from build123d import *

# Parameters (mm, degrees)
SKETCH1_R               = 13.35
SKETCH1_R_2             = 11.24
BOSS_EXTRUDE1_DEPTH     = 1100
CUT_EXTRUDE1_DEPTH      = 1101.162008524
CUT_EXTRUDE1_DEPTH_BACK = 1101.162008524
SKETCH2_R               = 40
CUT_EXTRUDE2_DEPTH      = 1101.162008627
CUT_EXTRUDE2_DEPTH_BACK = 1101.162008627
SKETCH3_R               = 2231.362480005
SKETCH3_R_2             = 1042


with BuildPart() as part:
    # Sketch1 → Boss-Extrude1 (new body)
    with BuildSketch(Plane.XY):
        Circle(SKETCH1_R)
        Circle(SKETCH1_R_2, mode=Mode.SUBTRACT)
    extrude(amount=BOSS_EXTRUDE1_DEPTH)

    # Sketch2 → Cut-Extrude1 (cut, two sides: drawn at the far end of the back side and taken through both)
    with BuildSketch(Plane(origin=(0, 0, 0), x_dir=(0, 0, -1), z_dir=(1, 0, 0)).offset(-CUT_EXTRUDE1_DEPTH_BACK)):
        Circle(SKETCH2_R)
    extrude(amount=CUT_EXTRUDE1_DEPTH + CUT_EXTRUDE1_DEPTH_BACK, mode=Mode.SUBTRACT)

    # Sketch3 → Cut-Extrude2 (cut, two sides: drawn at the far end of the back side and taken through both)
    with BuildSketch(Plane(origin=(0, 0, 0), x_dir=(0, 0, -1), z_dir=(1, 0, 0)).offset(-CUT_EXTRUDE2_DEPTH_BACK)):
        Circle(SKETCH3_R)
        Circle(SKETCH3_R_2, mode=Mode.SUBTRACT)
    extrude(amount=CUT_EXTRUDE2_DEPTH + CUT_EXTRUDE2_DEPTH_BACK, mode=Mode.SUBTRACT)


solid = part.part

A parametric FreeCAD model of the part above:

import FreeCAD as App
import Part
import Sketcher
Q = App.Units.Quantity

doc = App.newDocument("Part")
params = doc.addObject("Spreadsheet::Sheet", "Params")
for row, (alias, value) in enumerate([
    ("sketch1_diameter", "26.7 mm"),
    ("sketch1_diameter2", "22.48 mm"),
    ("pad1_length", "1100 mm"),
    ("sketch2_diameter", "80 mm"),
    ("sketch3_diameter", "2084 mm"),
], start=1):
    params.set(f"A{row}", alias)
    params.set(f"B{row}", "=" + value)
    params.setAlias(f"B{row}", alias)

body = doc.addObject("PartDesign::Body", "Body")

# Sketch on XY plane
sketch1 = body.newObject("Sketcher::SketchObject", "Sketch")
sketch1.AttachmentSupport = (doc.getObject("XY_Plane"), [""])
sketch1.MapMode = "FlatFace"
sketch1.addGeometry(Part.Circle(App.Vector(0, 0, 0), App.Vector(0, 0, 1), 13.35), False)
sketch1.addGeometry(Part.Circle(App.Vector(0, 0, 0), App.Vector(0, 0, 1), 11.24), False)
sketch1.addConstraint(Sketcher.Constraint("Coincident", 0, 3, -1, 1))
sketch1.addConstraint(Sketcher.Constraint("Coincident", 1, 3, -1, 1))
sketch1.addConstraint(Sketcher.Constraint("Diameter", 0, Q("26.7 mm")))
sketch1.addConstraint(Sketcher.Constraint("Diameter", 1, Q("22.48 mm")))
sketch1.setExpression("Constraints[2]", "Params.sketch1_diameter")
sketch1.setExpression("Constraints[3]", "Params.sketch1_diameter2")
pad1 = body.newObject("PartDesign::Pad", "Pad")
pad1.Profile = sketch1
pad1.setExpression("Length", "Params.pad1_length")

# Sketch on YZ plane
sketch2 = body.newObject("Sketcher::SketchObject", "Sketch001")
sketch2.AttachmentSupport = (doc.getObject("YZ_Plane"), [""])
sketch2.MapMode = "FlatFace"
sketch2.addGeometry(Part.Circle(App.Vector(0, 0, 0), App.Vector(0, 0, 1), 40), False)
sketch2.addConstraint(Sketcher.Constraint("Coincident", 0, 3, -1, 1))
sketch2.addConstraint(Sketcher.Constraint("Diameter", 0, Q("80 mm")))
sketch2.setExpression("Constraints[1]", "Params.sketch2_diameter")
pocket1 = body.newObject("PartDesign::Pocket", "Pocket")
pocket1.Profile = sketch2
pocket1.Type = "ThroughAll"
pocket1.Midplane = True

# Sketch on YZ plane
sketch3 = body.newObject("Sketcher::SketchObject", "Sketch002")
sketch3.AttachmentSupport = (doc.getObject("YZ_Plane"), [""])
sketch3.MapMode = "FlatFace"
sketch3.addGeometry(Part.Circle(App.Vector(0, 0, 0), App.Vector(0, 0, 1), 2231.36248), False)
sketch3.addGeometry(Part.Circle(App.Vector(0, 0, 0), App.Vector(0, 0, 1), 1042), False)
sketch3.addConstraint(Sketcher.Constraint("Coincident", 0, 3, -1, 1))
sketch3.addConstraint(Sketcher.Constraint("Coincident", 1, 3, -1, 1))
sketch3.addConstraint(Sketcher.Constraint("Diameter", 1, Q("2084 mm")))
sketch3.addConstraint(Sketcher.Constraint("Diameter", 0, Q("4462.72496 mm")))
sketch3.setExpression("Constraints[2]", "Params.sketch3_diameter")
pocket2 = body.newObject("PartDesign::Pocket", "Pocket001")
pocket2.Profile = sketch3
pocket2.Type = "ThroughAll"
pocket2.Midplane = True

doc.recompute()
